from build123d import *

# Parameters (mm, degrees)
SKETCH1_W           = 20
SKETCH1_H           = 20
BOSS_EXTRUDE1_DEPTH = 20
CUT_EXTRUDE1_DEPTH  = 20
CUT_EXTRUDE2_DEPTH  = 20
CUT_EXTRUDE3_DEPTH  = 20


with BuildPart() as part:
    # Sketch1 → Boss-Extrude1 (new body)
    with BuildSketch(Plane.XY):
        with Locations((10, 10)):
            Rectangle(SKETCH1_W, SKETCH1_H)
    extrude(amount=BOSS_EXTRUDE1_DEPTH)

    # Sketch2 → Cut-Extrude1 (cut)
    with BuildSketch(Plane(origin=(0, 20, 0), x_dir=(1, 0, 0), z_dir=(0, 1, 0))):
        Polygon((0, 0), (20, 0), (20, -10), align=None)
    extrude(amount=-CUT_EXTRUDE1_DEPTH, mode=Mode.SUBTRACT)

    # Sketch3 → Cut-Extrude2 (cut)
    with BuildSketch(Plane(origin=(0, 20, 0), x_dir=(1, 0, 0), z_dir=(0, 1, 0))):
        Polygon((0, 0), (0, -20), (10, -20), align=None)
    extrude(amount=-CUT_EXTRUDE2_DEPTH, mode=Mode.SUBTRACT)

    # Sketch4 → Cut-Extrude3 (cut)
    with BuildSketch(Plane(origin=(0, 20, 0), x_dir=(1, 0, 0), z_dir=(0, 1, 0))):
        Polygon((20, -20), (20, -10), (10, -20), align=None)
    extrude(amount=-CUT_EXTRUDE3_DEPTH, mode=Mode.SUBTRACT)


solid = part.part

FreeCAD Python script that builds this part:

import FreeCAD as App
import Part
import Sketcher
from FreeCAD import Vector
Q = App.Units.Quantity

doc = App.newDocument("Part")
body = doc.addObject("PartDesign::Body", "Body")

# Sketch on XY plane
sketch1 = body.newObject("Sketcher::SketchObject", "Sketch")
sketch1.AttachmentSupport = (doc.getObject("XY_Plane"), [""])
sketch1.MapMode = "FlatFace"
sketch1.addGeometry([
    Part.LineSegment(Vector(0, 20, 0), Vector(0, 0, 0)),
    Part.LineSegment(Vector(0, 0, 0), Vector(20, 0, 0)),
    Part.LineSegment(Vector(20, 0, 0), Vector(20, 20, 0)),
    Part.LineSegment(Vector(20, 20, 0), Vector(0, 20, 0)),
], False)
sketch1.addConstraint([
    Sketcher.Constraint("Coincident", 0, 2, 1, 1),
    Sketcher.Constraint("Coincident", 1, 2, 2, 1),
    Sketcher.Constraint("Coincident", 2, 2, 3, 1),
    Sketcher.Constraint("Coincident", 3, 2, 0, 1),
    Sketcher.Constraint("Vertical", 0),
    Sketcher.Constraint("Horizontal", 1),
    Sketcher.Constraint("Vertical", 2),
    Sketcher.Constraint("Horizontal", 3),
    Sketcher.Constraint("Coincident", 0, 2, -1, 1),
    Sketcher.Constraint("Equal", 3, 0),
    Sketcher.Constraint("DistanceX", 1, 1, 1, 2, Q("20 mm")),
])
pad1 = body.newObject("PartDesign::Pad", "Pad")
pad1.Profile = sketch1
pad1.Length = 20

# Sketch on XZ plane
sketch2 = body.newObject("Sketcher::SketchObject", "Sketch001")
sketch2.AttachmentSupport = (doc.getObject("XZ_Plane"), [""])
sketch2.MapMode = "FlatFace"
sketch2.AttachmentOffset = App.Placement(Vector(0, 0, -20), App.Rotation())
sketch2.addGeometry([
    Part.LineSegment(Vector(20, 0, 0), Vector(0, 0, 0)),
    Part.LineSegment(Vector(0, 0, 0), Vector(20, 10, 0)),
    Part.LineSegment(Vector(20, 10, 0), Vector(20, 0, 0)),
], False)
sketch2.addConstraint([
    Sketcher.Constraint("Coincident", 0, 2, 1, 1),
    Sketcher.Constraint("Coincident", 1, 2, 2, 1),
    Sketcher.Constraint("Coincident", 2, 2, 0, 1),
    Sketcher.Constraint("Horizontal", 0),
    Sketcher.Constraint("Vertical", 2),
    Sketcher.Constraint("Coincident", 0, 2, -1, 1),
    Sketcher.Constraint("DistanceX", 0, 2, 0, 1, Q("20 mm")),
    Sketcher.Constraint("DistanceY", 2, 2, 2, 1, Q("10 mm")),
])
pocket1 = body.newObject("PartDesign::Pocket", "Pocket")
pocket1.Profile = sketch2
pocket1.Length = 20
pocket1.Reversed = True

# Sketch on XZ plane
sketch3 = body.newObject("Sketcher::SketchObject", "Sketch002")
sketch3.AttachmentSupport = (doc.getObject("XZ_Plane"), [""])
sketch3.MapMode = "FlatFace"
sketch3.AttachmentOffset = App.Placement(Vector(0, 0, -20), App.Rotation())
sketch3.addGeometry([
    Part.LineSegment(Vector(0, 0, 0), Vector(0, 20, 0)),
    Part.LineSegment(Vector(0, 20, 0), Vector(10, 20, 0)),
    Part.LineSegment(Vector(10, 20, 0), Vector(0, 0, 0)),
], False)
sketch3.addConstraint([
    Sketcher.Constraint("Coincident", 0, 2, 1, 1),
    Sketcher.Constraint("Coincident", 1, 2, 2, 1),
    Sketcher.Constraint("Coincident", 2, 2, 0, 1),
    Sketcher.Constraint("Vertical", 0),
    Sketcher.Constraint("Horizontal", 1),
    Sketcher.Constraint("Coincident", 2, 2, -1, 1),
    Sketcher.Constraint("DistanceX", 1, 1, 1, 2, Q("10 mm")),
    Sketcher.Constraint("DistanceY", 0, 1, 0, 2, Q("20 mm")),
])
pocket2 = body.newObject("PartDesign::Pocket", "Pocket001")
pocket2.Profile = sketch3
pocket2.Length = 20
pocket2.Reversed = True

# Sketch on XZ plane
sketch4 = body.newObject("Sketcher::SketchObject", "Sketch003")
sketch4.AttachmentSupport = (doc.getObject("XZ_Plane"), [""])
sketch4.MapMode = "FlatFace"
sketch4.AttachmentOffset = App.Placement(Vector(0, 0, -20), App.Rotation())
sketch4.addGeometry([
    Part.LineSegment(Vector(20, 20, 0), Vector(20, 10, 0)),
    Part.LineSegment(Vector(20, 10, 0), Vector(10, 20, 0)),
    Part.LineSegment(Vector(10, 20, 0), Vector(20, 20, 0)),
], False)
sketch4.addConstraint([
    Sketcher.Constraint("Coincident", 0, 2, 1, 1),
    Sketcher.Constraint("Coincident", 1, 2, 2, 1),
    Sketcher.Constraint("Coincident", 2, 2, 0, 1),
    Sketcher.Constraint("Vertical", 0),
    Sketcher.Constraint("Horizontal", 2),
    Sketcher.Constraint("Equal", 2, 0),
    Sketcher.Constraint("DistanceX", 2, 1, 2, 2, Q("10 mm")),
    Sketcher.Constraint("DistanceX", -1, 1, 0, 2, Q("20 mm")),
    Sketcher.Constraint("DistanceY", -1, 1, 0, 2, Q("10 mm")),
])
pocket3 = body.newObject("PartDesign::Pocket", "Pocket002")
pocket3.Profile = sketch4
pocket3.Length = 20
pocket3.Reversed = True

doc.recompute()
